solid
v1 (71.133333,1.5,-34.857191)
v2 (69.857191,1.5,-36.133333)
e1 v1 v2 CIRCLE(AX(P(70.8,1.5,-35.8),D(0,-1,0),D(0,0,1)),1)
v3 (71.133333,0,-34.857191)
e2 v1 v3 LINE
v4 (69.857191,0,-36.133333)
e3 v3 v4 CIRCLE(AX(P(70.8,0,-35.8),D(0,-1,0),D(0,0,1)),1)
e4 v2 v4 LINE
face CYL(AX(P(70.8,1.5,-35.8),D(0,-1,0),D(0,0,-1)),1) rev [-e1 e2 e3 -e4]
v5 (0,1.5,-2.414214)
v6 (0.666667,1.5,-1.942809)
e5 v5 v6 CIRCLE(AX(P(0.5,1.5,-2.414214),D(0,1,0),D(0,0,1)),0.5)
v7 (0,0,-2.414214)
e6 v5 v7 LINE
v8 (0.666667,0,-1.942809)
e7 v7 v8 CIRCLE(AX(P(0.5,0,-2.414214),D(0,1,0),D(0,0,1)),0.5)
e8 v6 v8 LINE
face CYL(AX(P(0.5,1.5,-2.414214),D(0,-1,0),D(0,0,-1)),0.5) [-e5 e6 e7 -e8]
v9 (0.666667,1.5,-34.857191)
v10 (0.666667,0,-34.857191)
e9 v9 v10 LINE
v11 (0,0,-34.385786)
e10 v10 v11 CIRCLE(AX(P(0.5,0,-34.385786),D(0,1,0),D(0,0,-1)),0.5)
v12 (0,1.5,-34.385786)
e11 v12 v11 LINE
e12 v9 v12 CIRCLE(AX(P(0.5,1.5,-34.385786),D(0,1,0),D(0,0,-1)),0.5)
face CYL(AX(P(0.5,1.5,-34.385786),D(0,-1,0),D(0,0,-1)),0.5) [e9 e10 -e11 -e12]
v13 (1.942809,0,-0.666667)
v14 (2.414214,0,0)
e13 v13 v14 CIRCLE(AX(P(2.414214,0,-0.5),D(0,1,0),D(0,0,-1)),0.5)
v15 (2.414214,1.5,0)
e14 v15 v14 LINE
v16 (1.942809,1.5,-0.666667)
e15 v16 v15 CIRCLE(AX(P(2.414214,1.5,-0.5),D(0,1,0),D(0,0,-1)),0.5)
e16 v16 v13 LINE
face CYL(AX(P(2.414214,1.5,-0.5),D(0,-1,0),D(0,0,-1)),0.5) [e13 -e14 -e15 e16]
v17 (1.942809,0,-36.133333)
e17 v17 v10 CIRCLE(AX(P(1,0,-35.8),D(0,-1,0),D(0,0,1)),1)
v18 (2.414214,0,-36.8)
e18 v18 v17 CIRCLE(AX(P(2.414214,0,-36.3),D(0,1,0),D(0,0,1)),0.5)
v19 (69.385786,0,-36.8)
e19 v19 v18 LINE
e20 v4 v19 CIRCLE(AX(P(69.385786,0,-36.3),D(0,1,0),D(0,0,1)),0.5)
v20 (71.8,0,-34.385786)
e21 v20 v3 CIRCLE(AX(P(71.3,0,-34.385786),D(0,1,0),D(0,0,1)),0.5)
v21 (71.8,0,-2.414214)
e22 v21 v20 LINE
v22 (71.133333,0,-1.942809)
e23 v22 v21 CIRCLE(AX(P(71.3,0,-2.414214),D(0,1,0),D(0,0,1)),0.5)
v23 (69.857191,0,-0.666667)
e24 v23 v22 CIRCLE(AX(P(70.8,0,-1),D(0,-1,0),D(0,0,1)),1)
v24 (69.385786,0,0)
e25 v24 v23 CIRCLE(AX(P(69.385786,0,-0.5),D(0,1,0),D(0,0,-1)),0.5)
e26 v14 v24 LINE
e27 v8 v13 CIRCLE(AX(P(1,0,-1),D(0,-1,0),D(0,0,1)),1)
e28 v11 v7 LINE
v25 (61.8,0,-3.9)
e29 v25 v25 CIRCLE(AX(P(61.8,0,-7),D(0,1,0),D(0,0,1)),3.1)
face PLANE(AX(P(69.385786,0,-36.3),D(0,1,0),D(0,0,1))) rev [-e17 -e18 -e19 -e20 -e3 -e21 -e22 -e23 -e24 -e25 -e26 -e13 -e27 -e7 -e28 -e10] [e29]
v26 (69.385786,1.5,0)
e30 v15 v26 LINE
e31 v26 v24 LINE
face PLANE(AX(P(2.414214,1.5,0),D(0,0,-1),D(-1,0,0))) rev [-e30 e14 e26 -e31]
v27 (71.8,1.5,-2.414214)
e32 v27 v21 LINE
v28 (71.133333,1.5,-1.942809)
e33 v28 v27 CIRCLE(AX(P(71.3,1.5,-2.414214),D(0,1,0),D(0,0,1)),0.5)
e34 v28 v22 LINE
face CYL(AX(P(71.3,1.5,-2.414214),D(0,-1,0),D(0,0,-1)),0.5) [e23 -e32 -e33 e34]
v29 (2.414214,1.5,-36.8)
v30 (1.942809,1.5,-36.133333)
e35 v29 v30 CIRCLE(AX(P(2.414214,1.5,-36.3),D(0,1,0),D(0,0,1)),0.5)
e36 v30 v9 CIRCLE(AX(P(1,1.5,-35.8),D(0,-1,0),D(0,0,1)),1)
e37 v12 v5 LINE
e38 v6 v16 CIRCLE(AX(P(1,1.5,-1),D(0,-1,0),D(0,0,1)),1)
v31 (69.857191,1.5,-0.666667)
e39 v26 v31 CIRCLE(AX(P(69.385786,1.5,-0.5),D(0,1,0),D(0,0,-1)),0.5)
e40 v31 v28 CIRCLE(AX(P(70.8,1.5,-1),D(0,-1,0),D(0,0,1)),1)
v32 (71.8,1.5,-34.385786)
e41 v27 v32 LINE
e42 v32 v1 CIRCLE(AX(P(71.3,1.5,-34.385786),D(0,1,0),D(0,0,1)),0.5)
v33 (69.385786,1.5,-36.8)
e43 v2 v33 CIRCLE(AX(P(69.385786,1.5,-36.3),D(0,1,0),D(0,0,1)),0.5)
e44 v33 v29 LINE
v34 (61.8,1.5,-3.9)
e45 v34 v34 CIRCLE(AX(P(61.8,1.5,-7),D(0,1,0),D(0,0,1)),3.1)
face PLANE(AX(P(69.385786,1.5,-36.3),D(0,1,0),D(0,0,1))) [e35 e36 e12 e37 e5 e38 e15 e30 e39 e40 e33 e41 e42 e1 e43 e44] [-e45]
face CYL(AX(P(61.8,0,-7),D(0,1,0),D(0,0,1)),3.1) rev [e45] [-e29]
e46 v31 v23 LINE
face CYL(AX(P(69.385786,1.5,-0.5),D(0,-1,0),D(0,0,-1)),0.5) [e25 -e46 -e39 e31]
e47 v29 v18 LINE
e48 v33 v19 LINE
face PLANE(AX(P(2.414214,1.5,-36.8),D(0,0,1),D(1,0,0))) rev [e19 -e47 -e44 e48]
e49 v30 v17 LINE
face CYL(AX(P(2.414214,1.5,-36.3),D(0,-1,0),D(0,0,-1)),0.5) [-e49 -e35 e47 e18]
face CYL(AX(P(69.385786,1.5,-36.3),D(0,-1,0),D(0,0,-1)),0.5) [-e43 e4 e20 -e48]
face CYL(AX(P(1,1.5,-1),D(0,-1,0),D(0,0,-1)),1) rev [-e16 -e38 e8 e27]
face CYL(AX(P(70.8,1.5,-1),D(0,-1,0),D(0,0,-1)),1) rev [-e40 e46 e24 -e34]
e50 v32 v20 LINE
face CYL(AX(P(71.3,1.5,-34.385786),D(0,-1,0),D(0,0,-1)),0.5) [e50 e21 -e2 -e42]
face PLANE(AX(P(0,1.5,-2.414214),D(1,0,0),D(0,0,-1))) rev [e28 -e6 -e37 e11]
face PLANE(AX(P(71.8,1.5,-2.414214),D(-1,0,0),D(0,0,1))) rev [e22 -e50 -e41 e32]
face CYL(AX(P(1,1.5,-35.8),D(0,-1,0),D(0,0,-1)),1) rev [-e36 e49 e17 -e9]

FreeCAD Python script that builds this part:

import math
import FreeCAD as App
import Part
import Sketcher

doc = App.newDocument("Part")
params = doc.addObject("Spreadsheet::Sheet", "Params")
for row, (alias, value) in enumerate([
    ("sketch1_radius", "1 mm"),
    ("sketch1_radius2", "0.5 mm"),
    ("pad1_length", "1.5 mm"),
    ("sketch2_diameter", "6.2 mm"),
    ("pocket1_length", "1.5 mm"),
], start=1):
    params.set(f"A{row}", alias)
    params.set(f"B{row}", "=" + value)
    params.setAlias(f"B{row}", alias)

body = doc.addObject("PartDesign::Body", "Body")

# Sketch on XZ plane
sketch1 = body.newObject("Sketcher::SketchObject", "Sketch")
sketch1.AttachmentSupport = (doc.getObject("XZ_Plane"), [""])
sketch1.MapMode = "FlatFace"
sketch1.addGeometry(Part.LineSegment(App.Vector(2.41, 0, 0), App.Vector(69.39, 0, 0)), False)
sketch1.addGeometry(Part.ArcOfCircle(Part.Circle(App.Vector(69.39, -0.5, 0), App.Vector(0, 0, 1), 0.5), math.radians(-19), math.radians(90)), False)
sketch1.addGeometry(Part.ArcOfCircle(Part.Circle(App.Vector(70.8, -1, 0), App.Vector(0, 0, 1), 1), math.radians(161), math.radians(289)), False)
sketch1.addGeometry(Part.ArcOfCircle(Part.Circle(App.Vector(71.3, -2.41, 0), App.Vector(0, 0, 1), 0.5), math.radians(0), math.radians(109)), False)
sketch1.addGeometry(Part.LineSegment(App.Vector(71.8, -2.41, 0), App.Vector(71.8, -34.39, 0)), False)
sketch1.addGeometry(Part.ArcOfCircle(Part.Circle(App.Vector(71.3, -34.39, 0), App.Vector(0, 0, 1), 0.5), math.radians(-109), math.radians(0)), False)
sketch1.addGeometry(Part.ArcOfCircle(Part.Circle(App.Vector(70.8, -35.8, 0), App.Vector(0, 0, 1), 1), math.radians(71), math.radians(199)), False)
sketch1.addGeometry(Part.ArcOfCircle(Part.Circle(App.Vector(69.39, -36.3, 0), App.Vector(0, 0, 1), 0.5), math.radians(-90), math.radians(19)), False)
sketch1.addGeometry(Part.LineSegment(App.Vector(69.39, -36.8, 0), App.Vector(2.41, -36.8, 0)), False)
sketch1.addGeometry(Part.ArcOfCircle(Part.Circle(App.Vector(2.41, -36.3, 0), App.Vector(0, 0, 1), 0.5), math.radians(161), math.radians(270)), False)
sketch1.addGeometry(Part.ArcOfCircle(Part.Circle(App.Vector(1, -35.8, 0), App.Vector(0, 0, 1), 1), math.radians(-19), math.radians(109)), False)
sketch1.addGeometry(Part.ArcOfCircle(Part.Circle(App.Vector(0.5, -34.39, 0), App.Vector(0, 0, 1), 0.5), math.radians(180), math.radians(289)), False)
sketch1.addGeometry(Part.LineSegment(App.Vector(0, -34.39, 0), App.Vector(0, -2.41, 0)), False)
sketch1.addGeometry(Part.ArcOfCircle(Part.Circle(App.Vector(0.5, -2.41, 0), App.Vector(0, 0, 1), 0.5), math.radians(71), math.radians(180)), False)
sketch1.addGeometry(Part.ArcOfCircle(Part.Circle(App.Vector(1, -1, 0), App.Vector(0, 0, 1), 1), math.radians(-109), math.radians(19)), False)
sketch1.addGeometry(Part.ArcOfCircle(Part.Circle(App.Vector(2.41, -0.5, 0), App.Vector(0, 0, 1), 0.5), math.radians(90), math.radians(199)), False)
sketch1.addConstraint(Sketcher.Constraint("Tangent", 0, 2, 1, 2))
sketch1.addConstraint(Sketcher.Constraint("Tangent", 1, 1, 2, 1))
sketch1.addConstraint(Sketcher.Constraint("Tangent", 2, 2, 3, 2))
sketch1.addConstraint(Sketcher.Constraint("Tangent", 3, 1, 4, 1))
sketch1.addConstraint(Sketcher.Constraint("Tangent", 4, 2, 5, 2))
sketch1.addConstraint(Sketcher.Constraint("Tangent", 5, 1, 6, 1))
sketch1.addConstraint(Sketcher.Constraint("Tangent", 6, 2, 7, 2))
sketch1.addConstraint(Sketcher.Constraint("Tangent", 7, 1, 8, 1))
sketch1.addConstraint(Sketcher.Constraint("Tangent", 8, 2, 9, 2))
sketch1.addConstraint(Sketcher.Constraint("Tangent", 9, 1, 10, 1))
sketch1.addConstraint(Sketcher.Constraint("Tangent", 10, 2, 11, 2))
sketch1.addConstraint(Sketcher.Constraint("Tangent", 11, 1, 12, 1))
sketch1.addConstraint(Sketcher.Constraint("Tangent", 12, 2, 13, 2))
sketch1.addConstraint(Sketcher.Constraint("Tangent", 13, 1, 14, 1))
sketch1.addConstraint(Sketcher.Constraint("Tangent", 14, 2, 15, 2))
sketch1.addConstraint(Sketcher.Constraint("Tangent", 15, 1, 0, 1))
sketch1.addConstraint(Sketcher.Constraint("Horizontal", 0))
sketch1.addConstraint(Sketcher.Constraint("Vertical", 4))
sketch1.addConstraint(Sketcher.Constraint("Horizontal", 8))
sketch1.addConstraint(Sketcher.Constraint("Vertical", 12))
sketch1.addConstraint(Sketcher.Constraint("Equal", 1, 3))
sketch1.addConstraint(Sketcher.Constraint("Equal", 3, 5))
sketch1.addConstraint(Sketcher.Constraint("Equal", 2, 6))
sketch1.addConstraint(Sketcher.Constraint("Equal", 5, 7))
sketch1.addConstraint(Sketcher.Constraint("Equal", 7, 9))
sketch1.addConstraint(Sketcher.Constraint("Equal", 6, 10))
sketch1.addConstraint(Sketcher.Constraint("Equal", 9, 11))
sketch1.addConstraint(Sketcher.Constraint("Equal", 11, 13))
sketch1.addConstraint(Sketcher.Constraint("Equal", 10, 14))
sketch1.addConstraint(Sketcher.Constraint("Equal", 13, 15))
sketch1.addConstraint(Sketcher.Constraint("PointOnObject", 0, 2, -1))
sketch1.addConstraint(Sketcher.Constraint("PointOnObject", 11, 1, -2))
sketch1.addConstraint(Sketcher.Constraint("Horizontal", 6, 3, 10, 3))
sketch1.addConstraint(Sketcher.Constraint("Horizontal", 5, 3, 11, 3))
sketch1.addConstraint(Sketcher.Constraint("Horizontal", 3, 3, 13, 3))
sketch1.addConstraint(Sketcher.Constraint("Horizontal", 2, 3, 14, 3))
sketch1.addConstraint(Sketcher.Constraint("Vertical", 2, 3, 6, 3))
sketch1.addConstraint(Sketcher.Constraint("Vertical", 1, 3, 7, 3))
sketch1.addConstraint(Sketcher.Constraint("Radius", 2, 1.0))
sketch1.addConstraint(Sketcher.Constraint("Radius", 1, 0.5))
sketch1.addConstraint(Sketcher.Constraint("DistanceY", 2, 3, -1, 1, 1.0))
sketch1.addConstraint(Sketcher.Constraint("DistanceX", -1, 1, 10, 3, 1.0))
sketch1.addConstraint(Sketcher.Constraint("DistanceX", -1, 1, 2, 3, 70.8))
sketch1.addConstraint(Sketcher.Constraint("DistanceY", 6, 3, -1, 1, 35.8))
sketch1.setExpression("Constraints[38]", "Params.sketch1_radius")
sketch1.setExpression("Constraints[39]", "Params.sketch1_radius2")
pad1 = body.newObject("PartDesign::Pad", "Pad")
pad1.Profile = sketch1
pad1.setExpression("Length", "Params.pad1_length")
pad1.Reversed = True

# Sketch on XZ plane
sketch2 = body.newObject("Sketcher::SketchObject", "Sketch001")
sketch2.AttachmentSupport = (doc.getObject("XZ_Plane"), [""])
sketch2.MapMode = "FlatFace"
sketch2.AttachmentOffset = App.Placement(App.Vector(0, 0, -1.5), App.Rotation())
sketch2.addGeometry(Part.Circle(App.Vector(61.8, -7, 0), App.Vector(0, 0, 1), 3.1), False)
sketch2.addConstraint(Sketcher.Constraint("Diameter", 0, 6.2))
sketch2.addConstraint(Sketcher.Constraint("DistanceY", 0, 3, -1, 1, 7.0))
sketch2.addConstraint(Sketcher.Constraint("DistanceX", -1, 1, 0, 3, 61.8))
sketch2.setExpression("Constraints[0]", "Params.sketch2_diameter")
pocket1 = body.newObject("PartDesign::Pocket", "Pocket")
pocket1.Profile = sketch2
pocket1.setExpression("Length", "Params.pocket1_length")
pocket1.Reversed = True

doc.recompute()
